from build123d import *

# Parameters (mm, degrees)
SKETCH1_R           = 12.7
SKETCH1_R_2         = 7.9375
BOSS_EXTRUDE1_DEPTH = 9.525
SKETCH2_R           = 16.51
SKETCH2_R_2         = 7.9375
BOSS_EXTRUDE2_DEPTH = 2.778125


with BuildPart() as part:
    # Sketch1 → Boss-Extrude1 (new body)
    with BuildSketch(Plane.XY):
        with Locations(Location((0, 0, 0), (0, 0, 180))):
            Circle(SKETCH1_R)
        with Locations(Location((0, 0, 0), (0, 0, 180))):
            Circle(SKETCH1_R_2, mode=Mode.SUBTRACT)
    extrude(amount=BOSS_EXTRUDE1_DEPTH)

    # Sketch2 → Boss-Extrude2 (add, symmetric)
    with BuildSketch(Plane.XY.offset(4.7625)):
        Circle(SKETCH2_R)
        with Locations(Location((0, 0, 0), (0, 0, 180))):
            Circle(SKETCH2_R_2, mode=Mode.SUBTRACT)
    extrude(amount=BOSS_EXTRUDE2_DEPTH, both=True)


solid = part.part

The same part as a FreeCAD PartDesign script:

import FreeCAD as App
import Part
import Sketcher

V = App.Vector
Q = App.Units.Quantity

doc = App.newDocument("Part")
body = doc.addObject("PartDesign::Body", "Body")

# Sketch on XY plane
sketch1 = body.newObject("Sketcher::SketchObject", "Sketch")
sketch1.AttachmentSupport = (doc.getObject("XY_Plane"), [""])
sketch1.MapMode = "FlatFace"
sketch1.addGeometry(Part.Circle(V(0, 0, 0), V(0, 0, 1), 12.7), False)
sketch1.addGeometry(Part.Circle(V(0, 0, 0), V(0, 0, 1), 7.9375), False)
sketch1.addConstraint(Sketcher.Constraint("Coincident", 0, 3, -1, 1))
sketch1.addConstraint(Sketcher.Constraint("Coincident", 1, 3, -1, 1))
sketch1.addConstraint(Sketcher.Constraint("Diameter", 0, Q("1 in")))
sketch1.addConstraint(Sketcher.Constraint("Diameter", 1, Q("0.625 in")))
pad1 = body.newObject("PartDesign::Pad", "Pad")
pad1.Profile = sketch1
pad1.Length = Q("0.375 in")

# Sketch on XY plane
sketch2 = body.newObject("Sketcher::SketchObject", "Sketch001")
sketch2.AttachmentSupport = (doc.getObject("XY_Plane"), [""])
sketch2.MapMode = "FlatFace"
sketch2.AttachmentOffset = App.Placement(V(0, 0, 0.1875 * 25.4), App.Rotation())
sketch2.addGeometry(Part.Circle(V(0, 0, 0), V(0, 0, 1), 16.51), False)
sketch2.addGeometry(Part.Circle(V(0, 0, 0), V(0, 0, 1), 7.9375), False)
sketch2.addConstraint(Sketcher.Constraint("Coincident", 0, 3, -1, 1))
sketch2.addConstraint(Sketcher.Constraint("Coincident", 1, 3, -1, 1))
sketch2.addConstraint(Sketcher.Constraint("Diameter", 0, Q("1.3 in")))
sketch2.addConstraint(Sketcher.Constraint("Diameter", 1, Q("0.625 in")))
pad2 = body.newObject("PartDesign::Pad", "Pad001")
pad2.Profile = sketch2
pad2.Length = Q("0.21875 in")
pad2.Midplane = True

doc.recompute()
